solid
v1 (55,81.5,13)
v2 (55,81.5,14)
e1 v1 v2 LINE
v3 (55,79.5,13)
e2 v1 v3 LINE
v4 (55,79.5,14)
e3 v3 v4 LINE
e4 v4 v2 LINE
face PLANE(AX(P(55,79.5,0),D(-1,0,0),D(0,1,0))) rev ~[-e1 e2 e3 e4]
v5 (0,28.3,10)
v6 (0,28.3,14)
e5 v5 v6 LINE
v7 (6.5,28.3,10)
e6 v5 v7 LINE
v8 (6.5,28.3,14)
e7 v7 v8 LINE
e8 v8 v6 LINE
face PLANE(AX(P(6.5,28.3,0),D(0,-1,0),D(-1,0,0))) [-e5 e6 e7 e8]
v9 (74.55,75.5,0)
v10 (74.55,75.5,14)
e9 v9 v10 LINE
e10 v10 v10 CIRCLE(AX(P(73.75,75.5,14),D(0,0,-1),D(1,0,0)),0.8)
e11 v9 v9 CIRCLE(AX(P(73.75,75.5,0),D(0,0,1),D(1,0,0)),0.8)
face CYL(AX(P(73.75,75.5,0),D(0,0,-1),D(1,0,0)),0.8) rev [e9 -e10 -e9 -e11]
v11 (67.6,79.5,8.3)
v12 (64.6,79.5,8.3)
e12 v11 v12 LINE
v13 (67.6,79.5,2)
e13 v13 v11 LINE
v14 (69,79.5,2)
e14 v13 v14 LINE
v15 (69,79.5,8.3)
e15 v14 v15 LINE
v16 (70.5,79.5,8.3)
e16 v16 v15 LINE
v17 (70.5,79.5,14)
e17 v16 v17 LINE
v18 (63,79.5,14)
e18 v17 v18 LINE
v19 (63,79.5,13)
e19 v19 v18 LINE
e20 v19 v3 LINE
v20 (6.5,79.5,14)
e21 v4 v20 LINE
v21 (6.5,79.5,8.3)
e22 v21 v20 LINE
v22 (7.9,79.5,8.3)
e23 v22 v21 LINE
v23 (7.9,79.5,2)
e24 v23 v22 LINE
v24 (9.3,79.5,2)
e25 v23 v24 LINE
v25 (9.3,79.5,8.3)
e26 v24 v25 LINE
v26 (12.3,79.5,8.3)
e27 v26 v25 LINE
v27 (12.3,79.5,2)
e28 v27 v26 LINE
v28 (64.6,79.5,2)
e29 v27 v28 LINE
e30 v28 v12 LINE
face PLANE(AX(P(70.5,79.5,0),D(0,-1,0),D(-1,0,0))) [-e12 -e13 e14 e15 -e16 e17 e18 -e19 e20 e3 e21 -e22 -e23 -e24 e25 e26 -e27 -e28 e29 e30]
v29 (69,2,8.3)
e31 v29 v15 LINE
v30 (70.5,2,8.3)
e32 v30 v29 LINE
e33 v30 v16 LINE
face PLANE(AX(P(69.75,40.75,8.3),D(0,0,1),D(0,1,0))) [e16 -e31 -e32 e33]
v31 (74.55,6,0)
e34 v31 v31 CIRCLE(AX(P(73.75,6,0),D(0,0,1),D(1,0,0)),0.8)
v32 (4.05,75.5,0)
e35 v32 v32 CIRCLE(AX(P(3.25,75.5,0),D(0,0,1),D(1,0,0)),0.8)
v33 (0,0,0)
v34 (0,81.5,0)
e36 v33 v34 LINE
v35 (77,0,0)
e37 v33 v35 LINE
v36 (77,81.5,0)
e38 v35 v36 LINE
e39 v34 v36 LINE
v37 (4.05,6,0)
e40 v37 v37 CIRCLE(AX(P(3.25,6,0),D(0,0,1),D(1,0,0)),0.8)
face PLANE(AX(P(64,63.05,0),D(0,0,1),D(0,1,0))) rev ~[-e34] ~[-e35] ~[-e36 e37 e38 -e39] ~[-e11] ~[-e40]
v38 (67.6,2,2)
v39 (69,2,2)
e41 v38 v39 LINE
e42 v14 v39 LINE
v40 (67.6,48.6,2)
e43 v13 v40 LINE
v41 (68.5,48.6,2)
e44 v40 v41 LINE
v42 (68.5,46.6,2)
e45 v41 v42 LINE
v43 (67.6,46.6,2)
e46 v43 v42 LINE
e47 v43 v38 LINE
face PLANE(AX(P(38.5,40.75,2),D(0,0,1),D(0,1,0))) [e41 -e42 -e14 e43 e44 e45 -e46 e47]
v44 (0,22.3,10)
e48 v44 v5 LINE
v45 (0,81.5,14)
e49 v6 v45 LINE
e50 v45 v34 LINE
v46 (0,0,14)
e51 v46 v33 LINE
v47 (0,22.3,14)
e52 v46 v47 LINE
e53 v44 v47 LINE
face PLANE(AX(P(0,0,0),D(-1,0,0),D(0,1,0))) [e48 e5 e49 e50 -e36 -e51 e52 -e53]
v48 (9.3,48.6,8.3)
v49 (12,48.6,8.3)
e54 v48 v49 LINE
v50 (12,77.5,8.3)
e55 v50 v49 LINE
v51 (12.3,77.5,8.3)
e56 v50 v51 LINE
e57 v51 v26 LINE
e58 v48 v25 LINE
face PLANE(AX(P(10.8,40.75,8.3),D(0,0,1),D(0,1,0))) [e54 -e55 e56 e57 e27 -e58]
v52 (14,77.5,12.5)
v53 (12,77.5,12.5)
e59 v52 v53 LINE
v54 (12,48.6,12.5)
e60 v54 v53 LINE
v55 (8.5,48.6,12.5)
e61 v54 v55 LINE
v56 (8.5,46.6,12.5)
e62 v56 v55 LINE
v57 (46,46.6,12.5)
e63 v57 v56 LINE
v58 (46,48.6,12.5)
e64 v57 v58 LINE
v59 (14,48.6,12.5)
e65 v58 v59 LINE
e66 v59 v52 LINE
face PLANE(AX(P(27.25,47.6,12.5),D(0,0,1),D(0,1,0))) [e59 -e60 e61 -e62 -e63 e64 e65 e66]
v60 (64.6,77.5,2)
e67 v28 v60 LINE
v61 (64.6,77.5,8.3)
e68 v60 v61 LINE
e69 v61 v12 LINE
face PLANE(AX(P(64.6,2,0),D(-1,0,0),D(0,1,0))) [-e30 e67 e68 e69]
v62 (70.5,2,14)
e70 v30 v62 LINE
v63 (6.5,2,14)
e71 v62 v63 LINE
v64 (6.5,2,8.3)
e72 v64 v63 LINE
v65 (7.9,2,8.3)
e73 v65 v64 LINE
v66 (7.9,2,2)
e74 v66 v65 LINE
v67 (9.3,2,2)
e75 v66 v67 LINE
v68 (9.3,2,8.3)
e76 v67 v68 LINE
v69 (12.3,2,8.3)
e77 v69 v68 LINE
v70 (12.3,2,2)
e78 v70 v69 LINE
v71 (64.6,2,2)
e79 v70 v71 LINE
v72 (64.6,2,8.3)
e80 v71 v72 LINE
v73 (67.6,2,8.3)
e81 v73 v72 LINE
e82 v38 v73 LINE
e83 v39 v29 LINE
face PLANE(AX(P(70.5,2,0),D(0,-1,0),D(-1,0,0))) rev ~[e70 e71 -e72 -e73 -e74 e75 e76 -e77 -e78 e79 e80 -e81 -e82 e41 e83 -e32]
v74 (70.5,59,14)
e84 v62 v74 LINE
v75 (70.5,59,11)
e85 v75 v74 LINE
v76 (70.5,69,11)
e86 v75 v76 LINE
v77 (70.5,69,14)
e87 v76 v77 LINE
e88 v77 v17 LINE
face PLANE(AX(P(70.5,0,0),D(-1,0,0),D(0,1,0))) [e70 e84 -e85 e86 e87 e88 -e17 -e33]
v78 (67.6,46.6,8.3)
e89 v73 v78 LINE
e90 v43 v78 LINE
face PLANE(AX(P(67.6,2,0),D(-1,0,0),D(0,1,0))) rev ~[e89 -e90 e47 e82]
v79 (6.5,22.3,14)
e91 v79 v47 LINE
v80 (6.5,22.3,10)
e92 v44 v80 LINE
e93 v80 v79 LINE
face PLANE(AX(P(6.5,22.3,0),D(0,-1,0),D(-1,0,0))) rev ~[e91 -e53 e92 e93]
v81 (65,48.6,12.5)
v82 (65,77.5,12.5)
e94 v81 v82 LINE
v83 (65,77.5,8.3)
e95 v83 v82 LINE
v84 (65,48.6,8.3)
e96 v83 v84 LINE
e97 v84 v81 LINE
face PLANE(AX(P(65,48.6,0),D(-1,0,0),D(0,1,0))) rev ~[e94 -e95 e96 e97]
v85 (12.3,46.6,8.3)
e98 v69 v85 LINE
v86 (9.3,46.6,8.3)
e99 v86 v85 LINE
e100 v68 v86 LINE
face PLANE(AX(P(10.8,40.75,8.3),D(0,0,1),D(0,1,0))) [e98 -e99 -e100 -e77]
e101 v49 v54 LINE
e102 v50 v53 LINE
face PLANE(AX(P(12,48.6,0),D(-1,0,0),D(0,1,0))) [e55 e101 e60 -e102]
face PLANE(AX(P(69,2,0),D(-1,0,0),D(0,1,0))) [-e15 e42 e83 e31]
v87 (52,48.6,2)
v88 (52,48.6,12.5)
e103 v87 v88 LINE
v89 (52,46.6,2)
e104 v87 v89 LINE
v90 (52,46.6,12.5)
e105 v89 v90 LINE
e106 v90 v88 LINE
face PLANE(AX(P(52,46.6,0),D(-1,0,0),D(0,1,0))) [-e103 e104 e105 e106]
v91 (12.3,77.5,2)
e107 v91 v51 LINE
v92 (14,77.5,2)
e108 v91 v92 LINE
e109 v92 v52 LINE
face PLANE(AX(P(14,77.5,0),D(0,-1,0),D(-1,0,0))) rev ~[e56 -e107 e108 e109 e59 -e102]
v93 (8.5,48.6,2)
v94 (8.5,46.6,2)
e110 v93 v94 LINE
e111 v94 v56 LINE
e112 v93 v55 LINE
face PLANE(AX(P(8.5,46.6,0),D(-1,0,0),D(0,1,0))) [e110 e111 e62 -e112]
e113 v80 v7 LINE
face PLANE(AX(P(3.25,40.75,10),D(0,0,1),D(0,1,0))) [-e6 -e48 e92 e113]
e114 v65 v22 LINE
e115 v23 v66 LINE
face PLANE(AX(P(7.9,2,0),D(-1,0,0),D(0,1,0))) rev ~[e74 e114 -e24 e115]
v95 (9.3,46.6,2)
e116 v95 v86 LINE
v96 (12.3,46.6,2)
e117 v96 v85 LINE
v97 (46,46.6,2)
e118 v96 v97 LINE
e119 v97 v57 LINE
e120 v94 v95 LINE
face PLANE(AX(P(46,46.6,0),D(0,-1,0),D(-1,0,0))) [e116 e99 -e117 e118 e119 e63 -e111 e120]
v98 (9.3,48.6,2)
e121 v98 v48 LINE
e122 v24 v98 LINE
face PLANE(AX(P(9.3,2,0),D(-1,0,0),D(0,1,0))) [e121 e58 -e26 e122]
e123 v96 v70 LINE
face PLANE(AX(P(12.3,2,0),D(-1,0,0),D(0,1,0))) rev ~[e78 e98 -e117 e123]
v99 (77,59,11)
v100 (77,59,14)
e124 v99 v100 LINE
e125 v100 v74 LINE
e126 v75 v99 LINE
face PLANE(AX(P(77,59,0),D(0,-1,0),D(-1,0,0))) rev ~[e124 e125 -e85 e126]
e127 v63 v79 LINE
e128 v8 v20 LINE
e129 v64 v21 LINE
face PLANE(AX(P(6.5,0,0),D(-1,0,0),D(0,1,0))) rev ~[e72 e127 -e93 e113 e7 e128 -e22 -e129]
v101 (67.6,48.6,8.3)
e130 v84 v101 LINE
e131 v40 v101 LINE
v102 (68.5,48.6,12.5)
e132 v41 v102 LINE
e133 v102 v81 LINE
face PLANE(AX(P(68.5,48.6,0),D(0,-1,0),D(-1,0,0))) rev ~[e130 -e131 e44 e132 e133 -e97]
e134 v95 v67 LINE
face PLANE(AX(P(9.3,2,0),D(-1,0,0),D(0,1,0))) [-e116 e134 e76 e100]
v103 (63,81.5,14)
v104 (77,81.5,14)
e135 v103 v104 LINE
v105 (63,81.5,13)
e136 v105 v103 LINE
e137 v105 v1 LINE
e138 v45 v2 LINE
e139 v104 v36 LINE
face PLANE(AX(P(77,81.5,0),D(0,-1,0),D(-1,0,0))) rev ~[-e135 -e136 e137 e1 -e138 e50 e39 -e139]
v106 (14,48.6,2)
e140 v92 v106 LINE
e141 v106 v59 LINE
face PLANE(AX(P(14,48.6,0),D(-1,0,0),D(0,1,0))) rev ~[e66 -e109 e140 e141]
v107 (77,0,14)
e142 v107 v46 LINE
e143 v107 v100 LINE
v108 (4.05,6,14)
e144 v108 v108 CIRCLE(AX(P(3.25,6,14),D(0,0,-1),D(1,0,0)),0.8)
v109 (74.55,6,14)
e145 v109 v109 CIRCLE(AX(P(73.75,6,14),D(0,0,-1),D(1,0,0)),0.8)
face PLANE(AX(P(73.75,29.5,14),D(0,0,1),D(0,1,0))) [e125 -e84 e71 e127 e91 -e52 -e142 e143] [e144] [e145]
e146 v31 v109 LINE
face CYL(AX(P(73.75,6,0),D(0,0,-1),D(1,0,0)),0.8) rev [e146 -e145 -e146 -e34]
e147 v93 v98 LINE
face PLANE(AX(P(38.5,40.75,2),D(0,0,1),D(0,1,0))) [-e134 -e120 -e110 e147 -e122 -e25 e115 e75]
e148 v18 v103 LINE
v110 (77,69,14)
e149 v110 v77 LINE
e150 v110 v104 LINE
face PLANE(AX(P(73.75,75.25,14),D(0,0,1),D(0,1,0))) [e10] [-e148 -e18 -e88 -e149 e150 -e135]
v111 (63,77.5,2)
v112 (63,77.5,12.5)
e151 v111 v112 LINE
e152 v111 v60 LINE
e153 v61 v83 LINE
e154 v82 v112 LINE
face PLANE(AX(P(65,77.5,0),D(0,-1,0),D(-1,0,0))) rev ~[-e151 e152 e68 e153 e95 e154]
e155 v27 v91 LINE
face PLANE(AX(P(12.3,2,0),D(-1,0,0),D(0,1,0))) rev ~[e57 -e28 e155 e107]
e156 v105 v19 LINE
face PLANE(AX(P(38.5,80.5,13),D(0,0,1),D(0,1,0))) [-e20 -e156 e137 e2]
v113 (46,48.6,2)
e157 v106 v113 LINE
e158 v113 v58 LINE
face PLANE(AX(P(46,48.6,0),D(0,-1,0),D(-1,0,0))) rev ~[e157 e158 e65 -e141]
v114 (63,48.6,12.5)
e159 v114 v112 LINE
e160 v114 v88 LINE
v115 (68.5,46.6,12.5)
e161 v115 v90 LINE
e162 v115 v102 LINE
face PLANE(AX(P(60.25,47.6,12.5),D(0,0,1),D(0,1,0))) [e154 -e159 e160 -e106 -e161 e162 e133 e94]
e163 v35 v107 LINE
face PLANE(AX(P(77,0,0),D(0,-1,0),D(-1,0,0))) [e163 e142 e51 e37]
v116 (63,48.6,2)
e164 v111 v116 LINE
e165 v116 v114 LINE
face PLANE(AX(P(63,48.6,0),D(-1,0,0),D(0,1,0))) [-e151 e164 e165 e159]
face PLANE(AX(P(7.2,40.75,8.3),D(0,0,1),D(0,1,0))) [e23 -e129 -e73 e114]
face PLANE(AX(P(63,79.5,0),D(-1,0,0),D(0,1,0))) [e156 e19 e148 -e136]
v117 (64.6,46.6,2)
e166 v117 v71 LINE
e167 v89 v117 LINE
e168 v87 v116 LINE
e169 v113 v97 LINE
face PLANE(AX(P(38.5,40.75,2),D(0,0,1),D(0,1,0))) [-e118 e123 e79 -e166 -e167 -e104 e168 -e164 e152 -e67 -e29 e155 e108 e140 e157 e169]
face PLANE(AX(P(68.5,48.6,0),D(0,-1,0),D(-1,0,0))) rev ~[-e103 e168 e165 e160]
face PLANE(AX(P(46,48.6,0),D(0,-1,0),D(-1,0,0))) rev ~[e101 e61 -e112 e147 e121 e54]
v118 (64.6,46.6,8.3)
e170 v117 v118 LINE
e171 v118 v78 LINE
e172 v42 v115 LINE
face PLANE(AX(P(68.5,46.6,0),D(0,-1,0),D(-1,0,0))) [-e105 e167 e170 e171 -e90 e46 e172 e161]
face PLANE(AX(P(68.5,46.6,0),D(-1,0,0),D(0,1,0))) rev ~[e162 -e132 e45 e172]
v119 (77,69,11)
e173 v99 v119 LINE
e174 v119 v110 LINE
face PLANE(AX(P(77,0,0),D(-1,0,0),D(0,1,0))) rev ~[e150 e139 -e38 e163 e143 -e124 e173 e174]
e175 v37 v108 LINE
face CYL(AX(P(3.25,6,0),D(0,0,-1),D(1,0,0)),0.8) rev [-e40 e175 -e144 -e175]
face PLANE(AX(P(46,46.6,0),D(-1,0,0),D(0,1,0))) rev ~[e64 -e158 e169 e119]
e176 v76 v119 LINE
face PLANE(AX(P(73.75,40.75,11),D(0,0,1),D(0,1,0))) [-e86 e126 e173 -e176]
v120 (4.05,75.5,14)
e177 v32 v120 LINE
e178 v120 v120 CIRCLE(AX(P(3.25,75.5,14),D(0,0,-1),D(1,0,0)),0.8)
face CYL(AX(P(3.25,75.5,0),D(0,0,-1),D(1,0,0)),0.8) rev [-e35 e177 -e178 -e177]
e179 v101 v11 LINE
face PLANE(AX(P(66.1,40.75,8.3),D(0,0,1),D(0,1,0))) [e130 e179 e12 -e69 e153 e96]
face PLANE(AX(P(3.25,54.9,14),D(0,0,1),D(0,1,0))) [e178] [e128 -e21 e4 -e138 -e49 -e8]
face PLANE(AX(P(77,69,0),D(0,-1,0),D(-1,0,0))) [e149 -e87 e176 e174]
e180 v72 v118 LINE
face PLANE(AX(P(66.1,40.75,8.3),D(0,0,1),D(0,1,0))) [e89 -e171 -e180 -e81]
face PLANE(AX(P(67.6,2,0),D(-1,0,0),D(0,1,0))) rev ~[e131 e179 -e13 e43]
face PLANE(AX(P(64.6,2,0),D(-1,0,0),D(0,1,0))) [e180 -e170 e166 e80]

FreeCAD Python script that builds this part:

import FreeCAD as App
import Part
import Sketcher
from FreeCAD import Vector

doc = App.newDocument("Part")
body = doc.addObject("PartDesign::Body", "Body")

# Sketch on XY plane
sketch1 = doc.addObject("Sketcher::SketchObject", "Sketch")
body.addObject(sketch1)
sketch1.AttachmentSupport = (doc.XY_Plane, [""])
sketch1.MapMode = "FlatFace"
sketch1.addGeometry([
    Part.LineSegment(Vector(0, 0, 0), Vector(77, 0, 0)),
    Part.LineSegment(Vector(77, 0, 0), Vector(77, 81.5, 0)),
    Part.LineSegment(Vector(77, 81.5, 0), Vector(0, 81.5, 0)),
    Part.LineSegment(Vector(0, 81.5, 0), Vector(0, 0, 0)),
], False)
sketch1.addConstraint([
    Sketcher.Constraint("Coincident", 0, 2, 1, 1),
    Sketcher.Constraint("Coincident", 1, 2, 2, 1),
    Sketcher.Constraint("Coincident", 2, 2, 3, 1),
    Sketcher.Constraint("Coincident", 3, 2, 0, 1),
    Sketcher.Constraint("Horizontal", 0),
    Sketcher.Constraint("Vertical", 1),
    Sketcher.Constraint("Horizontal", 2),
    Sketcher.Constraint("Vertical", 3),
    Sketcher.Constraint("Coincident", 3, 2, -1, 1),
    Sketcher.Constraint("DistanceX", 0, 1, 0, 2, 77.0),
    Sketcher.Constraint("DistanceY", 1, 1, 1, 2, 81.5),
])
pad1 = doc.addObject("PartDesign::Pad", "Pad")
body.addObject(pad1)
pad1.Profile = sketch1
pad1.Length = 2

# Sketch on XY plane
sketch2 = doc.addObject("Sketcher::SketchObject", "Sketch001")
body.addObject(sketch2)
sketch2.AttachmentSupport = (doc.XY_Plane, [""])
sketch2.MapMode = "FlatFace"
sketch2.addGeometry([
    Part.LineSegment(Vector(0, 0, 0), Vector(6.5, 0, 0)),
    Part.LineSegment(Vector(6.5, 0, 0), Vector(6.5, 81.5, 0)),
    Part.LineSegment(Vector(6.5, 81.5, 0), Vector(0, 81.5, 0)),
    Part.LineSegment(Vector(0, 81.5, 0), Vector(0, 0, 0)),
], False)
sketch2.addConstraint([
    Sketcher.Constraint("Coincident", 0, 2, 1, 1),
    Sketcher.Constraint("Coincident", 1, 2, 2, 1),
    Sketcher.Constraint("Coincident", 2, 2, 3, 1),
    Sketcher.Constraint("Coincident", 3, 2, 0, 1),
    Sketcher.Constraint("Horizontal", 0),
    Sketcher.Constraint("Vertical", 1),
    Sketcher.Constraint("Horizontal", 2),
    Sketcher.Constraint("Vertical", 3),
    Sketcher.Constraint("Coincident", 3, 2, -1, 1),
    Sketcher.Constraint("DistanceX", 0, 1, 0, 2, 6.5),
    Sketcher.Constraint("DistanceY", 1, 1, 1, 2, 81.5),
])
pad2 = doc.addObject("PartDesign::Pad", "Pad001")
body.addObject(pad2)
pad2.Profile = sketch2
pad2.Length = 10

# Sketch on XY plane
sketch3 = doc.addObject("Sketcher::SketchObject", "Sketch002")
body.addObject(sketch3)
sketch3.AttachmentSupport = (doc.XY_Plane, [""])
sketch3.MapMode = "FlatFace"
sketch3.addGeometry([
    Part.LineSegment(Vector(0, 0, 0), Vector(6.5, 0, 0)),
    Part.LineSegment(Vector(6.5, 0, 0), Vector(6.5, 22.3, 0)),
    Part.LineSegment(Vector(6.5, 22.3, 0), Vector(0, 22.3, 0)),
    Part.LineSegment(Vector(0, 22.3, 0), Vector(0, 0, 0)),
], False)
sketch3.addConstraint([
    Sketcher.Constraint("Coincident", 0, 2, 1, 1),
    Sketcher.Constraint("Coincident", 1, 2, 2, 1),
    Sketcher.Constraint("Coincident", 2, 2, 3, 1),
    Sketcher.Constraint("Coincident", 3, 2, 0, 1),
    Sketcher.Constraint("Horizontal", 0),
    Sketcher.Constraint("Vertical", 1),
    Sketcher.Constraint("Horizontal", 2),
    Sketcher.Constraint("Vertical", 3),
    Sketcher.Constraint("Coincident", 3, 2, -1, 1),
    Sketcher.Constraint("DistanceX", 0, 1, 0, 2, 6.5),
    Sketcher.Constraint("DistanceY", 1, 1, 1, 2, 22.3),
])
pad3 = doc.addObject("PartDesign::Pad", "Pad002")
body.addObject(pad3)
pad3.Profile = sketch3
pad3.Length = 14

# Sketch on XY plane
sketch4 = doc.addObject("Sketcher::SketchObject", "Sketch003")
body.addObject(sketch4)
sketch4.AttachmentSupport = (doc.XY_Plane, [""])
sketch4.MapMode = "FlatFace"
sketch4.addGeometry([
    Part.LineSegment(Vector(0, 28.3, 0), Vector(6.5, 28.3, 0)),
    Part.LineSegment(Vector(6.5, 28.3, 0), Vector(6.5, 81.5, 0)),
    Part.LineSegment(Vector(6.5, 81.5, 0), Vector(0, 81.5, 0)),
    Part.LineSegment(Vector(0, 81.5, 0), Vector(0, 28.3, 0)),
], False)
sketch4.addConstraint([
    Sketcher.Constraint("Coincident", 0, 2, 1, 1),
    Sketcher.Constraint("Coincident", 1, 2, 2, 1),
    Sketcher.Constraint("Coincident", 2, 2, 3, 1),
    Sketcher.Constraint("Coincident", 3, 2, 0, 1),
    Sketcher.Constraint("Horizontal", 0),
    Sketcher.Constraint("Vertical", 1),
    Sketcher.Constraint("Horizontal", 2),
    Sketcher.Constraint("Vertical", 3),
    Sketcher.Constraint("PointOnObject", 2, 2, -2),
    Sketcher.Constraint("DistanceX", 0, 1, 0, 2, 6.5),
    Sketcher.Constraint("DistanceY", 1, 1, 1, 2, 53.2),
    Sketcher.Constraint("DistanceY", -1, 1, 0, 2, 28.3),
])
pad4 = doc.addObject("PartDesign::Pad", "Pad003")
body.addObject(pad4)
pad4.Profile = sketch4
pad4.Length = 14

# Sketch on XY plane
sketch5 = doc.addObject("Sketcher::SketchObject", "Sketch004")
body.addObject(sketch5)
sketch5.AttachmentSupport = (doc.XY_Plane, [""])
sketch5.MapMode = "FlatFace"
sketch5.addGeometry([
    Part.LineSegment(Vector(70.5, 0, 0), Vector(77, 0, 0)),
    Part.LineSegment(Vector(77, 0, 0), Vector(77, 81.5, 0)),
    Part.LineSegment(Vector(77, 81.5, 0), Vector(70.5, 81.5, 0)),
    Part.LineSegment(Vector(70.5, 81.5, 0), Vector(70.5, 0, 0)),
], False)
sketch5.addConstraint([
    Sketcher.Constraint("Coincident", 0, 2, 1, 1),
    Sketcher.Constraint("Coincident", 1, 2, 2, 1),
    Sketcher.Constraint("Coincident", 2, 2, 3, 1),
    Sketcher.Constraint("Coincident", 3, 2, 0, 1),
    Sketcher.Constraint("Horizontal", 0),
    Sketcher.Constraint("Vertical", 1),
    Sketcher.Constraint("Horizontal", 2),
    Sketcher.Constraint("Vertical", 3),
    Sketcher.Constraint("PointOnObject", 0, 2, -1),
    Sketcher.Constraint("DistanceX", 0, 1, 0, 2, 6.5),
    Sketcher.Constraint("DistanceY", 1, 1, 1, 2, 81.5),
    Sketcher.Constraint("DistanceX", -1, 1, 0, 2, 77.0),
])
pad5 = doc.addObject("PartDesign::Pad", "Pad004")
body.addObject(pad5)
pad5.Profile = sketch5
pad5.Length = 11

# Sketch on XY plane
sketch6 = doc.addObject("Sketcher::SketchObject", "Sketch005")
body.addObject(sketch6)
sketch6.AttachmentSupport = (doc.XY_Plane, [""])
sketch6.MapMode = "FlatFace"
sketch6.addGeometry([
    Part.LineSegment(Vector(70.5, 0, 0), Vector(77, 0, 0)),
    Part.LineSegment(Vector(77, 0, 0), Vector(77, 59, 0)),
    Part.LineSegment(Vector(77, 59, 0), Vector(70.5, 59, 0)),
    Part.LineSegment(Vector(70.5, 59, 0), Vector(70.5, 0, 0)),
], False)
sketch6.addConstraint([
    Sketcher.Constraint("Coincident", 0, 2, 1, 1),
    Sketcher.Constraint("Coincident", 1, 2, 2, 1),
    Sketcher.Constraint("Coincident", 2, 2, 3, 1),
    Sketcher.Constraint("Coincident", 3, 2, 0, 1),
    Sketcher.Constraint("Horizontal", 0),
    Sketcher.Constraint("Vertical", 1),
    Sketcher.Constraint("Horizontal", 2),
    Sketcher.Constraint("Vertical", 3),
    Sketcher.Constraint("PointOnObject", 0, 2, -1),
    Sketcher.Constraint("DistanceY", 1, 1, 1, 2, 59.0),
    Sketcher.Constraint("DistanceX", 0, 1, 0, 2, 6.5),
    Sketcher.Constraint("DistanceX", -1, 1, 0, 2, 77.0),
])
pad6 = doc.addObject("PartDesign::Pad", "Pad005")
body.addObject(pad6)
pad6.Profile = sketch6
pad6.Length = 14

# Sketch on XY plane
sketch7 = doc.addObject("Sketcher::SketchObject", "Sketch006")
body.addObject(sketch7)
sketch7.AttachmentSupport = (doc.XY_Plane, [""])
sketch7.MapMode = "FlatFace"
sketch7.addGeometry([
    Part.LineSegment(Vector(70.5, 69, 0), Vector(77, 69, 0)),
    Part.LineSegment(Vector(77, 69, 0), Vector(77, 81.5, 0)),
    Part.LineSegment(Vector(77, 81.5, 0), Vector(70.5, 81.5, 0)),
    Part.LineSegment(Vector(70.5, 81.5, 0), Vector(70.5, 69, 0)),
], False)
sketch7.addConstraint([
    Sketcher.Constraint("Coincident", 0, 2, 1, 1),
    Sketcher.Constraint("Coincident", 1, 2, 2, 1),
    Sketcher.Constraint("Coincident", 2, 2, 3, 1),
    Sketcher.Constraint("Coincident", 3, 2, 0, 1),
    Sketcher.Constraint("Horizontal", 0),
    Sketcher.Constraint("Vertical", 1),
    Sketcher.Constraint("Horizontal", 2),
    Sketcher.Constraint("Vertical", 3),
    Sketcher.Constraint("DistanceX", 0, 1, 0, 2, 6.5),
    Sketcher.Constraint("DistanceY", 1, 1, 1, 2, 12.5),
    Sketcher.Constraint("DistanceX", -1, 1, 0, 2, 77.0),
    Sketcher.Constraint("DistanceY", -1, 1, 0, 2, 69.0),
])
pad7 = doc.addObject("PartDesign::Pad", "Pad006")
body.addObject(pad7)
pad7.Profile = sketch7
pad7.Length = 14

# Sketch on XY plane
sketch8 = doc.addObject("Sketcher::SketchObject", "Sketch007")
body.addObject(sketch8)
sketch8.AttachmentSupport = (doc.XY_Plane, [""])
sketch8.MapMode = "FlatFace"
sketch8.addGeometry([
    Part.LineSegment(Vector(6.5, 0, 0), Vector(70.5, 0, 0)),
    Part.LineSegment(Vector(70.5, 0, 0), Vector(70.5, 2, 0)),
    Part.LineSegment(Vector(70.5, 2, 0), Vector(6.5, 2, 0)),
    Part.LineSegment(Vector(6.5, 2, 0), Vector(6.5, 0, 0)),
], False)
sketch8.addConstraint([
    Sketcher.Constraint("Coincident", 0, 2, 1, 1),
    Sketcher.Constraint("Coincident", 1, 2, 2, 1),
    Sketcher.Constraint("Coincident", 2, 2, 3, 1),
    Sketcher.Constraint("Coincident", 3, 2, 0, 1),
    Sketcher.Constraint("Horizontal", 0),
    Sketcher.Constraint("Vertical", 1),
    Sketcher.Constraint("Horizontal", 2),
    Sketcher.Constraint("Vertical", 3),
    Sketcher.Constraint("PointOnObject", 0, 2, -1),
    Sketcher.Constraint("DistanceX", 0, 1, 0, 2, 64.0),
    Sketcher.Constraint("DistanceY", 1, 1, 1, 2, 2.0),
    Sketcher.Constraint("DistanceX", -1, 1, 0, 2, 70.5),
])
pad8 = doc.addObject("PartDesign::Pad", "Pad007")
body.addObject(pad8)
pad8.Profile = sketch8
pad8.Length = 14

# Sketch on XY plane
sketch9 = doc.addObject("Sketcher::SketchObject", "Sketch008")
body.addObject(sketch9)
sketch9.AttachmentSupport = (doc.XY_Plane, [""])
sketch9.MapMode = "FlatFace"
sketch9.addGeometry([
    Part.LineSegment(Vector(6.5, 79.5, 0), Vector(70.5, 79.5, 0)),
    Part.LineSegment(Vector(70.5, 79.5, 0), Vector(70.5, 81.5, 0)),
    Part.LineSegment(Vector(70.5, 81.5, 0), Vector(6.5, 81.5, 0)),
    Part.LineSegment(Vector(6.5, 81.5, 0), Vector(6.5, 79.5, 0)),
], False)
sketch9.addConstraint([
    Sketcher.Constraint("Coincident", 0, 2, 1, 1),
    Sketcher.Constraint("Coincident", 1, 2, 2, 1),
    Sketcher.Constraint("Coincident", 2, 2, 3, 1),
    Sketcher.Constraint("Coincident", 3, 2, 0, 1),
    Sketcher.Constraint("Horizontal", 0),
    Sketcher.Constraint("Vertical", 1),
    Sketcher.Constraint("Horizontal", 2),
    Sketcher.Constraint("Vertical", 3),
    Sketcher.Constraint("DistanceX", 0, 1, 0, 2, 64.0),
    Sketcher.Constraint("DistanceY", 1, 1, 1, 2, 2.0),
    Sketcher.Constraint("DistanceX", -1, 1, 0, 2, 70.5),
    Sketcher.Constraint("DistanceY", -1, 1, 0, 2, 79.5),
])
pad9 = doc.addObject("PartDesign::Pad", "Pad008")
body.addObject(pad9)
pad9.Profile = sketch9
pad9.Length = 13

# Sketch on XY plane
sketch10 = doc.addObject("Sketcher::SketchObject", "Sketch009")
body.addObject(sketch10)
sketch10.AttachmentSupport = (doc.XY_Plane, [""])
sketch10.MapMode = "FlatFace"
sketch10.addGeometry([
    Part.LineSegment(Vector(6.5, 79.5, 0), Vector(55, 79.5, 0)),
    Part.LineSegment(Vector(55, 79.5, 0), Vector(55, 81.5, 0)),
    Part.LineSegment(Vector(55, 81.5, 0), Vector(6.5, 81.5, 0)),
    Part.LineSegment(Vector(6.5, 81.5, 0), Vector(6.5, 79.5, 0)),
], False)
sketch10.addConstraint([
    Sketcher.Constraint("Coincident", 0, 2, 1, 1),
    Sketcher.Constraint("Coincident", 1, 2, 2, 1),
    Sketcher.Constraint("Coincident", 2, 2, 3, 1),
    Sketcher.Constraint("Coincident", 3, 2, 0, 1),
    Sketcher.Constraint("Horizontal", 0),
    Sketcher.Constraint("Vertical", 1),
    Sketcher.Constraint("Horizontal", 2),
    Sketcher.Constraint("Vertical", 3),
    Sketcher.Constraint("DistanceY", 1, 1, 1, 2, 2.0),
    Sketcher.Constraint("DistanceX", 0, 1, 0, 2, 48.5),
    Sketcher.Constraint("DistanceX", -1, 1, 0, 2, 55.0),
    Sketcher.Constraint("DistanceY", -1, 1, 0, 2, 79.5),
])
pad10 = doc.addObject("PartDesign::Pad", "Pad009")
body.addObject(pad10)
pad10.Profile = sketch10
pad10.Length = 14

# Sketch on XY plane
sketch11 = doc.addObject("Sketcher::SketchObject", "Sketch010")
body.addObject(sketch11)
sketch11.AttachmentSupport = (doc.XY_Plane, [""])
sketch11.MapMode = "FlatFace"
sketch11.addGeometry([
    Part.LineSegment(Vector(63, 79.5, 0), Vector(70.5, 79.5, 0)),
    Part.LineSegment(Vector(70.5, 79.5, 0), Vector(70.5, 81.5, 0)),
    Part.LineSegment(Vector(70.5, 81.5, 0), Vector(63, 81.5, 0)),
    Part.LineSegment(Vector(63, 81.5, 0), Vector(63, 79.5, 0)),
], False)
sketch11.addConstraint([
    Sketcher.Constraint("Coincident", 0, 2, 1, 1),
    Sketcher.Constraint("Coincident", 1, 2, 2, 1),
    Sketcher.Constraint("Coincident", 2, 2, 3, 1),
    Sketcher.Constraint("Coincident", 3, 2, 0, 1),
    Sketcher.Constraint("Horizontal", 0),
    Sketcher.Constraint("Vertical", 1),
    Sketcher.Constraint("Horizontal", 2),
    Sketcher.Constraint("Vertical", 3),
    Sketcher.Constraint("DistanceY", 1, 1, 1, 2, 2.0),
    Sketcher.Constraint("DistanceX", 0, 1, 0, 2, 7.5),
    Sketcher.Constraint("DistanceX", -1, 1, 2, 2, 63.0),
    Sketcher.Constraint("DistanceY", -1, 1, 0, 2, 79.5),
])
pad11 = doc.addObject("PartDesign::Pad", "Pad010")
body.addObject(pad11)
pad11.Profile = sketch11
pad11.Length = 14

# Sketch on XY plane
sketch12 = doc.addObject("Sketcher::SketchObject", "Sketch011")
body.addObject(sketch12)
sketch12.AttachmentSupport = (doc.XY_Plane, [""])
sketch12.MapMode = "FlatFace"
sketch12.addGeometry([
    Part.LineSegment(Vector(6.5, 2, 0), Vector(7.9, 2, 0)),
    Part.LineSegment(Vector(7.9, 2, 0), Vector(7.9, 79.5, 0)),
    Part.LineSegment(Vector(7.9, 79.5, 0), Vector(6.5, 79.5, 0)),
    Part.LineSegment(Vector(6.5, 79.5, 0), Vector(6.5, 2, 0)),
], False)
sketch12.addConstraint([
    Sketcher.Constraint("Coincident", 0, 2, 1, 1),
    Sketcher.Constraint("Coincident", 1, 2, 2, 1),
    Sketcher.Constraint("Coincident", 2, 2, 3, 1),
    Sketcher.Constraint("Coincident", 3, 2, 0, 1),
    Sketcher.Constraint("Horizontal", 0),
    Sketcher.Constraint("Vertical", 1),
    Sketcher.Constraint("Horizontal", 2),
    Sketcher.Constraint("Vertical", 3),
    Sketcher.Constraint("DistanceX", 0, 1, 0, 2, 1.4),
    Sketcher.Constraint("DistanceY", 1, 1, 1, 2, 77.5),
    Sketcher.Constraint("DistanceY", -1, 1, 0, 2, 2.0),
    Sketcher.Constraint("DistanceX", -1, 1, 0, 2, 7.9),
])
pad12 = doc.addObject("PartDesign::Pad", "Pad011")
body.addObject(pad12)
pad12.Profile = sketch12
pad12.Length = 8.3

# Sketch on XY plane
sketch13 = doc.addObject("Sketcher::SketchObject", "Sketch012")
body.addObject(sketch13)
sketch13.AttachmentSupport = (doc.XY_Plane, [""])
sketch13.MapMode = "FlatFace"
sketch13.addGeometry([
    Part.LineSegment(Vector(9.3, 2, 0), Vector(12.3, 2, 0)),
    Part.LineSegment(Vector(12.3, 2, 0), Vector(12.3, 79.5, 0)),
    Part.LineSegment(Vector(12.3, 79.5, 0), Vector(9.3, 79.5, 0)),
    Part.LineSegment(Vector(9.3, 79.5, 0), Vector(9.3, 2, 0)),
], False)
sketch13.addConstraint([
    Sketcher.Constraint("Coincident", 0, 2, 1, 1),
    Sketcher.Constraint("Coincident", 1, 2, 2, 1),
    Sketcher.Constraint("Coincident", 2, 2, 3, 1),
    Sketcher.Constraint("Coincident", 3, 2, 0, 1),
    Sketcher.Constraint("Horizontal", 0),
    Sketcher.Constraint("Vertical", 1),
    Sketcher.Constraint("Horizontal", 2),
    Sketcher.Constraint("Vertical", 3),
    Sketcher.Constraint("DistanceX", 0, 1, 0, 2, 3.0),
    Sketcher.Constraint("DistanceY", 1, 1, 1, 2, 77.5),
    Sketcher.Constraint("DistanceY", -1, 1, 0, 2, 2.0),
    Sketcher.Constraint("DistanceX", -1, 1, 0, 2, 12.3),
])
pad13 = doc.addObject("PartDesign::Pad", "Pad012")
body.addObject(pad13)
pad13.Profile = sketch13
pad13.Length = 8.3

# Sketch on XY plane
sketch14 = doc.addObject("Sketcher::SketchObject", "Sketch013")
body.addObject(sketch14)
sketch14.AttachmentSupport = (doc.XY_Plane, [""])
sketch14.MapMode = "FlatFace"
sketch14.addGeometry([
    Part.LineSegment(Vector(64.6, 2, 0), Vector(67.6, 2, 0)),
    Part.LineSegment(Vector(67.6, 2, 0), Vector(67.6, 79.5, 0)),
    Part.LineSegment(Vector(67.6, 79.5, 0), Vector(64.6, 79.5, 0)),
    Part.LineSegment(Vector(64.6, 79.5, 0), Vector(64.6, 2, 0)),
], False)
sketch14.addConstraint([
    Sketcher.Constraint("Coincident", 0, 2, 1, 1),
    Sketcher.Constraint("Coincident", 1, 2, 2, 1),
    Sketcher.Constraint("Coincident", 2, 2, 3, 1),
    Sketcher.Constraint("Coincident", 3, 2, 0, 1),
    Sketcher.Constraint("Horizontal", 0),
    Sketcher.Constraint("Vertical", 1),
    Sketcher.Constraint("Horizontal", 2),
    Sketcher.Constraint("Vertical", 3),
    Sketcher.Constraint("DistanceX", 0, 1, 0, 2, 3.0),
    Sketcher.Constraint("DistanceY", 1, 1, 1, 2, 77.5),
    Sketcher.Constraint("DistanceY", -1, 1, 0, 2, 2.0),
    Sketcher.Constraint("DistanceX", -1, 1, 0, 2, 67.6),
])
pad14 = doc.addObject("PartDesign::Pad", "Pad013")
body.addObject(pad14)
pad14.Profile = sketch14
pad14.Length = 8.3

# Sketch on XY plane
sketch15 = doc.addObject("Sketcher::SketchObject", "Sketch014")
body.addObject(sketch15)
sketch15.AttachmentSupport = (doc.XY_Plane, [""])
sketch15.MapMode = "FlatFace"
sketch15.addGeometry([
    Part.LineSegment(Vector(69, 2, 0), Vector(70.5, 2, 0)),
    Part.LineSegment(Vector(70.5, 2, 0), Vector(70.5, 79.5, 0)),
    Part.LineSegment(Vector(70.5, 79.5, 0), Vector(69, 79.5, 0)),
    Part.LineSegment(Vector(69, 79.5, 0), Vector(69, 2, 0)),
], False)
sketch15.addConstraint([
    Sketcher.Constraint("Coincident", 0, 2, 1, 1),
    Sketcher.Constraint("Coincident", 1, 2, 2, 1),
    Sketcher.Constraint("Coincident", 2, 2, 3, 1),
    Sketcher.Constraint("Coincident", 3, 2, 0, 1),
    Sketcher.Constraint("Horizontal", 0),
    Sketcher.Constraint("Vertical", 1),
    Sketcher.Constraint("Horizontal", 2),
    Sketcher.Constraint("Vertical", 3),
    Sketcher.Constraint("DistanceX", 0, 1, 0, 2, 1.5),
    Sketcher.Constraint("DistanceY", 1, 1, 1, 2, 77.5),
    Sketcher.Constraint("DistanceY", -1, 1, 0, 2, 2.0),
    Sketcher.Constraint("DistanceX", -1, 1, 2, 2, 69.0),
])
pad15 = doc.addObject("PartDesign::Pad", "Pad014")
body.addObject(pad15)
pad15.Profile = sketch15
pad15.Length = 8.3

# Sketch on XY plane
sketch16 = doc.addObject("Sketcher::SketchObject", "Sketch015")
body.addObject(sketch16)
sketch16.AttachmentSupport = (doc.XY_Plane, [""])
sketch16.MapMode = "FlatFace"
sketch16.addGeometry([
    Part.LineSegment(Vector(8.5, 46.6, 0), Vector(46, 46.6, 0)),
    Part.LineSegment(Vector(46, 46.6, 0), Vector(46, 48.6, 0)),
    Part.LineSegment(Vector(46, 48.6, 0), Vector(8.5, 48.6, 0)),
    Part.LineSegment(Vector(8.5, 48.6, 0), Vector(8.5, 46.6, 0)),
], False)
sketch16.addConstraint([
    Sketcher.Constraint("Coincident", 0, 2, 1, 1),
    Sketcher.Constraint("Coincident", 1, 2, 2, 1),
    Sketcher.Constraint("Coincident", 2, 2, 3, 1),
    Sketcher.Constraint("Coincident", 3, 2, 0, 1),
    Sketcher.Constraint("Horizontal", 0),
    Sketcher.Constraint("Vertical", 1),
    Sketcher.Constraint("Horizontal", 2),
    Sketcher.Constraint("Vertical", 3),
    Sketcher.Constraint("DistanceY", 1, 1, 1, 2, 2.0),
    Sketcher.Constraint("DistanceX", 0, 1, 0, 2, 37.5),
    Sketcher.Constraint("DistanceX", -1, 1, 0, 2, 46.0),
    Sketcher.Constraint("DistanceY", -1, 1, 0, 2, 46.6),
])
pad16 = doc.addObject("PartDesign::Pad", "Pad015")
body.addObject(pad16)
pad16.Profile = sketch16
pad16.Length = 12.5

# Sketch on XY plane
sketch17 = doc.addObject("Sketcher::SketchObject", "Sketch016")
body.addObject(sketch17)
sketch17.AttachmentSupport = (doc.XY_Plane, [""])
sketch17.MapMode = "FlatFace"
sketch17.addGeometry([
    Part.LineSegment(Vector(52, 46.6, 0), Vector(68.5, 46.6, 0)),
    Part.LineSegment(Vector(68.5, 46.6, 0), Vector(68.5, 48.6, 0)),
    Part.LineSegment(Vector(68.5, 48.6, 0), Vector(52, 48.6, 0)),
    Part.LineSegment(Vector(52, 48.6, 0), Vector(52, 46.6, 0)),
], False)
sketch17.addConstraint([
    Sketcher.Constraint("Coincident", 0, 2, 1, 1),
    Sketcher.Constraint("Coincident", 1, 2, 2, 1),
    Sketcher.Constraint("Coincident", 2, 2, 3, 1),
    Sketcher.Constraint("Coincident", 3, 2, 0, 1),
    Sketcher.Constraint("Horizontal", 0),
    Sketcher.Constraint("Vertical", 1),
    Sketcher.Constraint("Horizontal", 2),
    Sketcher.Constraint("Vertical", 3),
    Sketcher.Constraint("DistanceY", 1, 1, 1, 2, 2.0),
    Sketcher.Constraint("DistanceX", 0, 1, 0, 2, 16.5),
    Sketcher.Constraint("DistanceX", -1, 1, 2, 2, 52.0),
    Sketcher.Constraint("DistanceY", -1, 1, 0, 2, 46.6),
])
pad17 = doc.addObject("PartDesign::Pad", "Pad016")
body.addObject(pad17)
pad17.Profile = sketch17
pad17.Length = 12.5

# Sketch on XY plane
sketch18 = doc.addObject("Sketcher::SketchObject", "Sketch017")
body.addObject(sketch18)
sketch18.AttachmentSupport = (doc.XY_Plane, [""])
sketch18.MapMode = "FlatFace"
sketch18.addGeometry([
    Part.LineSegment(Vector(12, 48.6, 0), Vector(14, 48.6, 0)),
    Part.LineSegment(Vector(14, 48.6, 0), Vector(14, 77.5, 0)),
    Part.LineSegment(Vector(14, 77.5, 0), Vector(12, 77.5, 0)),
    Part.LineSegment(Vector(12, 77.5, 0), Vector(12, 48.6, 0)),
], False)
sketch18.addConstraint([
    Sketcher.Constraint("Coincident", 0, 2, 1, 1),
    Sketcher.Constraint("Coincident", 1, 2, 2, 1),
    Sketcher.Constraint("Coincident", 2, 2, 3, 1),
    Sketcher.Constraint("Coincident", 3, 2, 0, 1),
    Sketcher.Constraint("Horizontal", 0),
    Sketcher.Constraint("Vertical", 1),
    Sketcher.Constraint("Horizontal", 2),
    Sketcher.Constraint("Vertical", 3),
    Sketcher.Constraint("DistanceX", 0, 1, 0, 2, 2.0),
    Sketcher.Constraint("DistanceY", 1, 1, 1, 2, 28.9),
    Sketcher.Constraint("DistanceX", -1, 1, 0, 2, 14.0),
    Sketcher.Constraint("DistanceY", -1, 1, 0, 2, 48.6),
])
pad18 = doc.addObject("PartDesign::Pad", "Pad017")
body.addObject(pad18)
pad18.Profile = sketch18
pad18.Length = 12.5

# Sketch on XY plane
sketch19 = doc.addObject("Sketcher::SketchObject", "Sketch018")
body.addObject(sketch19)
sketch19.AttachmentSupport = (doc.XY_Plane, [""])
sketch19.MapMode = "FlatFace"
sketch19.addGeometry([
    Part.LineSegment(Vector(63, 48.6, 0), Vector(65, 48.6, 0)),
    Part.LineSegment(Vector(65, 48.6, 0), Vector(65, 77.5, 0)),
    Part.LineSegment(Vector(65, 77.5, 0), Vector(63, 77.5, 0)),
    Part.LineSegment(Vector(63, 77.5, 0), Vector(63, 48.6, 0)),
], False)
sketch19.addConstraint([
    Sketcher.Constraint("Coincident", 0, 2, 1, 1),
    Sketcher.Constraint("Coincident", 1, 2, 2, 1),
    Sketcher.Constraint("Coincident", 2, 2, 3, 1),
    Sketcher.Constraint("Coincident", 3, 2, 0, 1),
    Sketcher.Constraint("Horizontal", 0),
    Sketcher.Constraint("Vertical", 1),
    Sketcher.Constraint("Horizontal", 2),
    Sketcher.Constraint("Vertical", 3),
    Sketcher.Constraint("DistanceX", 0, 1, 0, 2, 2.0),
    Sketcher.Constraint("DistanceY", 1, 1, 1, 2, 28.9),
    Sketcher.Constraint("DistanceX", -1, 1, 0, 2, 65.0),
    Sketcher.Constraint("DistanceY", -1, 1, 0, 2, 48.6),
])
pad19 = doc.addObject("PartDesign::Pad", "Pad018")
body.addObject(pad19)
pad19.Profile = sketch19
pad19.Length = 12.5

# Sketch on XY plane
sketch20 = doc.addObject("Sketcher::SketchObject", "Sketch019")
body.addObject(sketch20)
sketch20.AttachmentSupport = (doc.XY_Plane, [""])
sketch20.MapMode = "FlatFace"
sketch20.addGeometry(Part.Circle(Vector(3.25, 6, 0), Vector(0, 0, 1), 0.8), False)
sketch20.addConstraint([
    Sketcher.Constraint("Diameter", 0, 1.6),
    Sketcher.Constraint("DistanceY", -1, 1, 0, 3, 6.0),
    Sketcher.Constraint("DistanceX", -1, 1, 0, 3, 3.25),
])
pocket1 = doc.addObject("PartDesign::Pocket", "Pocket")
body.addObject(pocket1)
pocket1.Profile = sketch20
pocket1.Length = 20
pocket1.Reversed = True

# Sketch on XY plane
sketch21 = doc.addObject("Sketcher::SketchObject", "Sketch020")
body.addObject(sketch21)
sketch21.AttachmentSupport = (doc.XY_Plane, [""])
sketch21.MapMode = "FlatFace"
sketch21.addGeometry(Part.Circle(Vector(3.25, 75.5, 0), Vector(0, 0, 1), 0.8), False)
sketch21.addConstraint([
    Sketcher.Constraint("Diameter", 0, 1.6),
    Sketcher.Constraint("DistanceY", -1, 1, 0, 3, 75.5),
    Sketcher.Constraint("DistanceX", -1, 1, 0, 3, 3.25),
])
pocket2 = doc.addObject("PartDesign::Pocket", "Pocket001")
body.addObject(pocket2)
pocket2.Profile = sketch21
pocket2.Length = 20
pocket2.Reversed = True

# Sketch on XY plane
sketch22 = doc.addObject("Sketcher::SketchObject", "Sketch021")
body.addObject(sketch22)
sketch22.AttachmentSupport = (doc.XY_Plane, [""])
sketch22.MapMode = "FlatFace"
sketch22.addGeometry(Part.Circle(Vector(73.75, 6, 0), Vector(0, 0, 1), 0.8), False)
sketch22.addConstraint([
    Sketcher.Constraint("Diameter", 0, 1.6),
    Sketcher.Constraint("DistanceY", -1, 1, 0, 3, 6.0),
    Sketcher.Constraint("DistanceX", -1, 1, 0, 3, 73.75),
])
pocket3 = doc.addObject("PartDesign::Pocket", "Pocket002")
body.addObject(pocket3)
pocket3.Profile = sketch22
pocket3.Length = 20
pocket3.Reversed = True

# Sketch on XY plane
sketch23 = doc.addObject("Sketcher::SketchObject", "Sketch022")
body.addObject(sketch23)
sketch23.AttachmentSupport = (doc.XY_Plane, [""])
sketch23.MapMode = "FlatFace"
sketch23.addGeometry(Part.Circle(Vector(73.75, 75.5, 0), Vector(0, 0, 1), 0.8), False)
sketch23.addConstraint([
    Sketcher.Constraint("Diameter", 0, 1.6),
    Sketcher.Constraint("DistanceY", -1, 1, 0, 3, 75.5),
    Sketcher.Constraint("DistanceX", -1, 1, 0, 3, 73.75),
])
pocket4 = doc.addObject("PartDesign::Pocket", "Pocket003")
body.addObject(pocket4)
pocket4.Profile = sketch23
pocket4.Length = 20
pocket4.Reversed = True

doc.recompute()
